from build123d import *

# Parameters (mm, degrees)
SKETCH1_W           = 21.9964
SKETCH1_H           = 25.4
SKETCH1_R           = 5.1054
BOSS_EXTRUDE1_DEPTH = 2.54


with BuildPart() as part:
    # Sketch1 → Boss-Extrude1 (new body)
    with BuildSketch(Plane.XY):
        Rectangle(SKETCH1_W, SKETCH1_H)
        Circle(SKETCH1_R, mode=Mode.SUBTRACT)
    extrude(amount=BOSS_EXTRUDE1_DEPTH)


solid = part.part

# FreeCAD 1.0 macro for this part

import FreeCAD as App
import Part
import Sketcher
Q = App.Units.Quantity


def add_polygon(sketch, points):
    """Adds a closed chain of lines whose ends are joined by coincident constraints."""
    first, n = sketch.GeometryCount, len(points)
    for a, b in zip(points, points[1:] + points[:1]):
        sketch.addGeometry(Part.LineSegment(App.Vector(*a, 0), App.Vector(*b, 0)), False)
    for i in range(n):
        sketch.addConstraint(Sketcher.Constraint("Coincident", first + i, 2, first + (i + 1) % n, 1))

doc = App.newDocument("Part")
params = doc.addObject("Spreadsheet::Sheet", "Params")
for row, (alias, value) in enumerate([
    ("sketch1_height", "1 in"),
    ("sketch1_diameter", "0.402 in"),
    ("sketch1_width", "0.866 in"),
    ("pad1_length", "0.1 in"),
], start=1):
    params.set(f"A{row}", alias)
    params.set(f"B{row}", "=" + value)
    params.setAlias(f"B{row}", alias)

body = doc.addObject("PartDesign::Body", "Body")

# Sketch on XY plane
sketch1 = body.newObject("Sketcher::SketchObject", "Sketch")
sketch1.AttachmentSupport = (doc.getObject("XY_Plane"), [""])
sketch1.MapMode = "FlatFace"
add_polygon(sketch1, [(-11, 13), (-11, -13), (11, -13), (11, 13)])  # lines 0-3
sketch1.addGeometry(Part.Circle(App.Vector(0, 0, 0), App.Vector(0, 0, 1), 5), False)  # 4
sketch1.addConstraint(Sketcher.Constraint("Vertical", 0))
sketch1.addConstraint(Sketcher.Constraint("Horizontal", 1))
sketch1.addConstraint(Sketcher.Constraint("Vertical", 2))
sketch1.addConstraint(Sketcher.Constraint("Horizontal", 3))
sketch1.addConstraint(Sketcher.Constraint("Coincident", 4, 3, -1, 1))
sketch1.addConstraint(Sketcher.Constraint("Symmetric", 0, 2, 2, 2, -1, 1))
sketch1.addConstraint(Sketcher.Constraint("DistanceY", 0, 2, 0, 1, Q("1 in")))
sketch1.addConstraint(Sketcher.Constraint("Diameter", 4, Q("0.402 in")))
sketch1.addConstraint(Sketcher.Constraint("DistanceX", 1, 1, 1, 2, Q("0.866 in")))
sketch1.setExpression("Constraints[10]", "Params.sketch1_height")
sketch1.setExpression("Constraints[11]", "Params.sketch1_diameter")
sketch1.setExpression("Constraints[12]", "Params.sketch1_width")
pad1 = body.newObject("PartDesign::Pad", "Pad")
pad1.Profile = sketch1
pad1.setExpression("Length", "Params.pad1_length")

doc.recompute()
